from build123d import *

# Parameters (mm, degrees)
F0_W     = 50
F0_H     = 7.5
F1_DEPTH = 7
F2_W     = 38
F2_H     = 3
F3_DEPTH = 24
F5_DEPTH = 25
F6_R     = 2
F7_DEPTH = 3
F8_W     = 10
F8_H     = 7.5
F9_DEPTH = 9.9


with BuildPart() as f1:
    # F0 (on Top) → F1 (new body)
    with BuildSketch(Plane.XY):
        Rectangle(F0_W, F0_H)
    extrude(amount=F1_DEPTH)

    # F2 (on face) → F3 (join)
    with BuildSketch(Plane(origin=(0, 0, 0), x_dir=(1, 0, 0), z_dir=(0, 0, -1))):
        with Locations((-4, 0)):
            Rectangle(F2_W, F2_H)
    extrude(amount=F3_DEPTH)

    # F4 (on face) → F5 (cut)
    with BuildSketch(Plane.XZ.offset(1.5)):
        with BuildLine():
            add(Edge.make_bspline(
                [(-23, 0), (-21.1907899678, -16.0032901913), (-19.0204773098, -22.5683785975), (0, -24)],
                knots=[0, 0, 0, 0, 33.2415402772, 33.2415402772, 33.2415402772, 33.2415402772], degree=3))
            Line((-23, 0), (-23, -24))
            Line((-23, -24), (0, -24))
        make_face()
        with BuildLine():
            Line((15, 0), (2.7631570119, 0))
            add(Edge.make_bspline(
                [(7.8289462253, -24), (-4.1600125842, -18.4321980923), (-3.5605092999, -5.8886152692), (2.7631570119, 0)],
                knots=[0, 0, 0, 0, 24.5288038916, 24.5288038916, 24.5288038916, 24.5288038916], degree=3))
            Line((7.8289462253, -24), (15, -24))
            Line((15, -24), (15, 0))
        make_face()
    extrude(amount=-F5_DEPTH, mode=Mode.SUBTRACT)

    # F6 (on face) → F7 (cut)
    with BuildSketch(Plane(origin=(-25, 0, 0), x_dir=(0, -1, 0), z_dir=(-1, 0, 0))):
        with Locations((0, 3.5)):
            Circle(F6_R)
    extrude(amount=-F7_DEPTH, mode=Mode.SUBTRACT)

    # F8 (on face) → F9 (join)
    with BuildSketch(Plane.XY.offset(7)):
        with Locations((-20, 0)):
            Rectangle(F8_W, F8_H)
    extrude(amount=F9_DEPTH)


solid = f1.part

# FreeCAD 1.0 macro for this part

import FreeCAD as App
import Part
import Sketcher

V = App.Vector

doc = App.newDocument("Part")
params = doc.addObject("Spreadsheet::Sheet", "Params")
for row, (alias, value) in enumerate([
    ("sketch1_width", "50 mm"),
    ("sketch1_height", "7.5 mm"),
    ("pad1_length", "7 mm"),
    ("sketch2_width", "38 mm"),
    ("sketch2_height", "3 mm"),
    ("pad2_length", "24 mm"),
    ("pocket1_length", "25 mm"),
    ("sketch4_diameter", "4 mm"),
    ("pocket2_length", "3 mm"),
    ("sketch5_width", "10 mm"),
    ("sketch5_height", "7.5 mm"),
    ("pad3_length", "9.9 mm"),
], start=1):
    params.set(f"A{row}", alias)
    params.set(f"B{row}", "=" + value)
    params.setAlias(f"B{row}", alias)

body = doc.addObject("PartDesign::Body", "Body")

sketch1 = body.newObject("Sketcher::SketchObject", "Sketch")
sketch1.AttachmentSupport = (doc.getObject("XY_Plane"), [""])
sketch1.MapMode = "FlatFace"
sketch1.addGeometry([
    Part.LineSegment(V(-25, 4, 0), V(-25, -4, 0)),
    Part.LineSegment(V(-25, -4, 0), V(25, -4, 0)),
    Part.LineSegment(V(25, -4, 0), V(25, 4, 0)),
    Part.LineSegment(V(25, 4, 0), V(-25, 4, 0)),
], False)
sketch1.addConstraint([
    Sketcher.Constraint("Coincident", 0, 2, 1, 1),
    Sketcher.Constraint("Coincident", 1, 2, 2, 1),
    Sketcher.Constraint("Coincident", 2, 2, 3, 1),
    Sketcher.Constraint("Coincident", 3, 2, 0, 1),
    Sketcher.Constraint("Vertical", 0),
    Sketcher.Constraint("Horizontal", 1),
    Sketcher.Constraint("Vertical", 2),
    Sketcher.Constraint("Horizontal", 3),
    Sketcher.Constraint("Symmetric", 0, 2, 2, 2, -1, 1),
    Sketcher.Constraint("DistanceX", 1, 1, 1, 2, 50.0),
    Sketcher.Constraint("DistanceY", 0, 2, 0, 1, 7.5),
])
sketch1.setExpression("Constraints[9]", "Params.sketch1_width")
sketch1.setExpression("Constraints[10]", "Params.sketch1_height")
pad1 = body.newObject("PartDesign::Pad", "Pad")
pad1.Profile = sketch1
pad1.setExpression("Length", "Params.pad1_length")

sketch2 = body.newObject("Sketcher::SketchObject", "Sketch001")
sketch2.AttachmentSupport = (doc.getObject("XY_Plane"), [""])
sketch2.MapMode = "FlatFace"
sketch2.addGeometry([
    Part.LineSegment(V(-23, -1.5, 0), V(-23, 1.5, 0)),
    Part.LineSegment(V(-23, 1.5, 0), V(15, 1.5, 0)),
    Part.LineSegment(V(15, 1.5, 0), V(15, -1.5, 0)),
    Part.LineSegment(V(15, -1.5, 0), V(-23, -1.5, 0)),
], False)
sketch2.addConstraint([
    Sketcher.Constraint("Coincident", 0, 2, 1, 1),
    Sketcher.Constraint("Coincident", 1, 2, 2, 1),
    Sketcher.Constraint("Coincident", 2, 2, 3, 1),
    Sketcher.Constraint("Coincident", 3, 2, 0, 1),
    Sketcher.Constraint("Vertical", 0),
    Sketcher.Constraint("Horizontal", 1),
    Sketcher.Constraint("Vertical", 2),
    Sketcher.Constraint("Horizontal", 3),
    Sketcher.Constraint("DistanceX", 1, 1, 1, 2, 38.0),
    Sketcher.Constraint("DistanceY", 0, 1, 0, 2, 3.0),
    Sketcher.Constraint("DistanceX", 0, 2, -1, 1, 23.0),
    Sketcher.Constraint("DistanceY", -1, 1, 0, 2, 1.5),
])
sketch2.setExpression("Constraints[8]", "Params.sketch2_width")
sketch2.setExpression("Constraints[9]", "Params.sketch2_height")
pad2 = body.newObject("PartDesign::Pad", "Pad001")
pad2.Profile = sketch2
pad2.setExpression("Length", "Params.pad2_length")
pad2.Reversed = True

sketch3 = body.newObject("Sketcher::SketchObject", "Sketch002")
sketch3.AttachmentSupport = (doc.getObject("XZ_Plane"), [""])
sketch3.MapMode = "FlatFace"
sketch3.AttachmentOffset = App.Placement(V(0, 0, 1.5), App.Rotation())
sketch3.addGeometry([
    Part.BSplineCurve([V(-23, 0, 0), V(-21.19079, -16.00329, 0), V(-19.020477, -22.568379, 0), V(0, -24, 0)], [4, 4], [0, 33.241540277], False, 3, [1, 1, 1, 1], False),
    Part.LineSegment(V(-23, 0, 0), V(-23, -24, 0)),
    Part.LineSegment(V(-23, -24, 0), V(0, -24, 0)),
    Part.LineSegment(V(15, 0, 0), V(2.763157, 0, 0)),
    Part.BSplineCurve([V(7.828946, -24, 0), V(-4.160013, -18.432198, 0), V(-3.560509, -5.888615, 0), V(2.763157, 0, 0)], [4, 4], [0, 24.528803892], False, 3, [1, 1, 1, 1], False),
    Part.LineSegment(V(7.828946, -24, 0), V(15, -24, 0)),
    Part.LineSegment(V(15, -24, 0), V(15, 0, 0)),
], False)
sketch3.addConstraint([
    Sketcher.Constraint("Block", 0),
    Sketcher.Constraint("Block", 4),
    Sketcher.Constraint("Coincident", 0, 1, 1, 1),
    Sketcher.Constraint("Coincident", 1, 2, 2, 1),
    Sketcher.Constraint("Coincident", 2, 2, 0, 2),
    Sketcher.Constraint("Coincident", 3, 2, 4, 2),
    Sketcher.Constraint("Coincident", 4, 1, 5, 1),
    Sketcher.Constraint("Coincident", 5, 2, 6, 1),
    Sketcher.Constraint("Coincident", 6, 2, 3, 1),
    Sketcher.Constraint("Vertical", 1),
    Sketcher.Constraint("Horizontal", 2),
    Sketcher.Constraint("Horizontal", 3),
    Sketcher.Constraint("Horizontal", 5),
    Sketcher.Constraint("Vertical", 6),
    Sketcher.Constraint("DistanceX", -1, 1, 5, 2, 15.0),
])
pocket1 = body.newObject("PartDesign::Pocket", "Pocket")
pocket1.Profile = sketch3
pocket1.setExpression("Length", "Params.pocket1_length")

sketch4 = body.newObject("Sketcher::SketchObject", "Sketch003")
sketch4.AttachmentSupport = (doc.getObject("YZ_Plane"), [""])
sketch4.MapMode = "FlatFace"
sketch4.AttachmentOffset = App.Placement(V(0, 0, -25), App.Rotation())
sketch4.addGeometry(Part.Circle(V(0, 3.5, 0), V(0, 0, 1), 2), False)
sketch4.addConstraint([
    Sketcher.Constraint("PointOnObject", 0, 3, -2),
    Sketcher.Constraint("Diameter", 0, 4.0),
    Sketcher.Constraint("DistanceY", -1, 1, 0, 3, 3.5),
])
sketch4.setExpression("Constraints[1]", "Params.sketch4_diameter")
pocket2 = body.newObject("PartDesign::Pocket", "Pocket001")
pocket2.Profile = sketch4
pocket2.setExpression("Length", "Params.pocket2_length")
pocket2.Reversed = True

sketch5 = body.newObject("Sketcher::SketchObject", "Sketch004")
sketch5.AttachmentSupport = (doc.getObject("XY_Plane"), [""])
sketch5.MapMode = "FlatFace"
sketch5.AttachmentOffset = App.Placement(V(0, 0, 7), App.Rotation())
sketch5.addGeometry([
    Part.LineSegment(V(-25, 4, 0), V(-25, -4, 0)),
    Part.LineSegment(V(-25, -4, 0), V(-15, -4, 0)),
    Part.LineSegment(V(-15, -4, 0), V(-15, 4, 0)),
    Part.LineSegment(V(-15, 4, 0), V(-25, 4, 0)),
], False)
sketch5.addConstraint([
    Sketcher.Constraint("Coincident", 0, 2, 1, 1),
    Sketcher.Constraint("Coincident", 1, 2, 2, 1),
    Sketcher.Constraint("Coincident", 2, 2, 3, 1),
    Sketcher.Constraint("Coincident", 3, 2, 0, 1),
    Sketcher.Constraint("Vertical", 0),
    Sketcher.Constraint("Horizontal", 1),
    Sketcher.Constraint("Vertical", 2),
    Sketcher.Constraint("Horizontal", 3),
    Sketcher.Constraint("DistanceX", 1, 1, 1, 2, 10.0),
    Sketcher.Constraint("DistanceY", 0, 2, 0, 1, 7.5),
    Sketcher.Constraint("DistanceX", 0, 2, -1, 1, 25.0),
    Sketcher.Constraint("DistanceY", 0, 2, -1, 1, 3.75),
])
sketch5.setExpression("Constraints[8]", "Params.sketch5_width")
sketch5.setExpression("Constraints[9]", "Params.sketch5_height")
pad3 = body.newObject("PartDesign::Pad", "Pad002")
pad3.Profile = sketch5
pad3.setExpression("Length", "Params.pad3_length")

doc.recompute()
